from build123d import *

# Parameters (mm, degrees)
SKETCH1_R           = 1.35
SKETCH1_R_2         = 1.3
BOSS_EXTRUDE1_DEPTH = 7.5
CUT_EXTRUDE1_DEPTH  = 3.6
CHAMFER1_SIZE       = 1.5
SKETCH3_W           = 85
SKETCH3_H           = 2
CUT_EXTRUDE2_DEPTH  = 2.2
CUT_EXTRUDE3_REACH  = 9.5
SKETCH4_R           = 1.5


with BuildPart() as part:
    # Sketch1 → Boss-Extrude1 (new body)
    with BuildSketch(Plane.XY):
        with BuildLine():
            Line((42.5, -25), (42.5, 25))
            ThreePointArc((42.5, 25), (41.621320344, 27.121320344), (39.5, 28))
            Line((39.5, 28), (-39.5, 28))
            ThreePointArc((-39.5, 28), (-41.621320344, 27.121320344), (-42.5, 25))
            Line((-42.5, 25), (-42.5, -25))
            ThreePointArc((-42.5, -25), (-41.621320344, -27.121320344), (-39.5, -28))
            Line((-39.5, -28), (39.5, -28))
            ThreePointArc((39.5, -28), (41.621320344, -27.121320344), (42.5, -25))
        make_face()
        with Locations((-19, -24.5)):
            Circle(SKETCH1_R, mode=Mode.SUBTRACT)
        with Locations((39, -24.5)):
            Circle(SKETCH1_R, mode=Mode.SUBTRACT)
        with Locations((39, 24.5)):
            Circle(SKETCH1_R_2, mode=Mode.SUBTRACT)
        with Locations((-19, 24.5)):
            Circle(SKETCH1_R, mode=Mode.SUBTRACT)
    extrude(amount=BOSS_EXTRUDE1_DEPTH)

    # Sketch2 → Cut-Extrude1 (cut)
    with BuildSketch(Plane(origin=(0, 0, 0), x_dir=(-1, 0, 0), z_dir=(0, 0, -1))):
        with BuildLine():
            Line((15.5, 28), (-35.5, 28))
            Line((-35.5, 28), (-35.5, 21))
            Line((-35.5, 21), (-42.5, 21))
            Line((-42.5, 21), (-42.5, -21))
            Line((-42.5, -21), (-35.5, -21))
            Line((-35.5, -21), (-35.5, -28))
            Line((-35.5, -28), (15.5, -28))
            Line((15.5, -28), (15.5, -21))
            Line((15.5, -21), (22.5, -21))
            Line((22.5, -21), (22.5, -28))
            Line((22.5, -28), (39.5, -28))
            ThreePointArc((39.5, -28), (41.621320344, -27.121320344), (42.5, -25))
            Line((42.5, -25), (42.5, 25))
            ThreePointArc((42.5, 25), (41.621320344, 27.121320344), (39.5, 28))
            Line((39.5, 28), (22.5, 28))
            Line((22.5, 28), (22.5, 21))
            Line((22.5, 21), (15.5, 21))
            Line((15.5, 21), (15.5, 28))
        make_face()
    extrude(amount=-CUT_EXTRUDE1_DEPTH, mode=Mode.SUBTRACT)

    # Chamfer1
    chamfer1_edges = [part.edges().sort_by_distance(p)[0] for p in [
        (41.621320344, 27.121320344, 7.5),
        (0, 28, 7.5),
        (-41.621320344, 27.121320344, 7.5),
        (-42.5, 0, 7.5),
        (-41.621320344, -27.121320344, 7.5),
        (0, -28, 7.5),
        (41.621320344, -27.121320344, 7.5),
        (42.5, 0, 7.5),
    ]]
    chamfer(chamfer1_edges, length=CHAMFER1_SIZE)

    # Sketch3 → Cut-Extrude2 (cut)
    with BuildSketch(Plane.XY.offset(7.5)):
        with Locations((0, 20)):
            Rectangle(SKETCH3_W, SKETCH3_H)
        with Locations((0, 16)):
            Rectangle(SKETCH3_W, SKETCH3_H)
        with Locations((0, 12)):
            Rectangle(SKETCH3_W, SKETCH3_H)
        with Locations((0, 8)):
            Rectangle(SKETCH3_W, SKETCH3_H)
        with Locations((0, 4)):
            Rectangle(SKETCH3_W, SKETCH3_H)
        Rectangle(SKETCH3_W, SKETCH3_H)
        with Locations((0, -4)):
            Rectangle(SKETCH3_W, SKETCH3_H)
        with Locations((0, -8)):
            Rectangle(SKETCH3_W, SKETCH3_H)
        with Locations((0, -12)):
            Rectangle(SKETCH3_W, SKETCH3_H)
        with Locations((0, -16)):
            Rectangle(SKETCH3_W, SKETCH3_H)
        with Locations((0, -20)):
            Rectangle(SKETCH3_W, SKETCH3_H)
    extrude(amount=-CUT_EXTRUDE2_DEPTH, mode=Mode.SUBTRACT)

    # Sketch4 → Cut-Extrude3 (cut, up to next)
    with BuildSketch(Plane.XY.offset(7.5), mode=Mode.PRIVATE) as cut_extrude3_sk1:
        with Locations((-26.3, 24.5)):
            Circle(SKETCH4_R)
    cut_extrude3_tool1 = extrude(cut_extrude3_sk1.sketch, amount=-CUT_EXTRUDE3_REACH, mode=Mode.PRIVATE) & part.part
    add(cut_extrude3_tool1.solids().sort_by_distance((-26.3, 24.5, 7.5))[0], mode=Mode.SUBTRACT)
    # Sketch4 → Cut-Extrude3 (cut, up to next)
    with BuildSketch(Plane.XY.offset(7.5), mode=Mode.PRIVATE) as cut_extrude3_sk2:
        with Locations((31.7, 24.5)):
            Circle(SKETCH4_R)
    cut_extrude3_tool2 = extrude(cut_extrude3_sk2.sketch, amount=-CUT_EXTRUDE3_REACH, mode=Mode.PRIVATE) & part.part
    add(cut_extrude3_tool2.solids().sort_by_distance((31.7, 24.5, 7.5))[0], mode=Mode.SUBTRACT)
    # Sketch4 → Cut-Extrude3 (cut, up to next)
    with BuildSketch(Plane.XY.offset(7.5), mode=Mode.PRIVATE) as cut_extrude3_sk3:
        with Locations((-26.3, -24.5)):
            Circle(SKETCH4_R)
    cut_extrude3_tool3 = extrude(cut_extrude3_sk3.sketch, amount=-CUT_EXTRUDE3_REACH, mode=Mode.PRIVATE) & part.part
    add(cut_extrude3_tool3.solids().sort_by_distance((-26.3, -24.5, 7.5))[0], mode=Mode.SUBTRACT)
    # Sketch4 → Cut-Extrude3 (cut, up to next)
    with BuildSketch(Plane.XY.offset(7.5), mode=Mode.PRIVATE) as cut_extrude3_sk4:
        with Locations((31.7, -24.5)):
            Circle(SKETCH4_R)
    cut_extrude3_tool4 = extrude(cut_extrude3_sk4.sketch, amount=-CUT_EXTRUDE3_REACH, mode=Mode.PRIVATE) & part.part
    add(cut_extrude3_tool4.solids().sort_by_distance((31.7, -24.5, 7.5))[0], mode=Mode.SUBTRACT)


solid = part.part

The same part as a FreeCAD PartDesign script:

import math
import FreeCAD as App
import Part
import Sketcher
Q = App.Units.Quantity


def edges_at(feature, points):
    """Names of the edges that pass closest to the given points."""
    edges = feature.Shape.Edges
    near = lambda p: min(range(len(edges)), key=lambda i: edges[i].distToShape(Part.Vertex(*p))[0])
    return sorted({f"Edge{near(p) + 1}" for p in points})


def add_polygon(sketch, points):
    """Adds a closed chain of lines whose ends are joined by coincident constraints."""
    first, n = sketch.GeometryCount, len(points)
    for a, b in zip(points, points[1:] + points[:1]):
        sketch.addGeometry(Part.LineSegment(App.Vector(*a, 0), App.Vector(*b, 0)), False)
    for i in range(n):
        sketch.addConstraint(Sketcher.Constraint("Coincident", first + i, 2, first + (i + 1) % n, 1))

doc = App.newDocument("Part")
body = doc.addObject("PartDesign::Body", "Body")

sketch1 = body.newObject("Sketcher::SketchObject", "Sketch")
sketch1.AttachmentSupport = (doc.getObject("XY_Plane"), [""])
sketch1.MapMode = "FlatFace"
sketch1.addGeometry([
    Part.LineSegment(App.Vector(42.5, -25, 0), App.Vector(42.5, 25, 0)),
    Part.ArcOfCircle(Part.Circle(App.Vector(39.5, 25, 0), App.Vector(0, 0, 1), 3), math.radians(0), math.radians(90)),
    Part.LineSegment(App.Vector(39.5, 28, 0), App.Vector(-39.5, 28, 0)),
    Part.ArcOfCircle(Part.Circle(App.Vector(-39.5, 25, 0), App.Vector(0, 0, 1), 3), math.radians(90), math.radians(180)),
    Part.LineSegment(App.Vector(-42.5, 25, 0), App.Vector(-42.5, -25, 0)),
    Part.ArcOfCircle(Part.Circle(App.Vector(-39.5, -25, 0), App.Vector(0, 0, 1), 3), math.radians(180), math.radians(270)),
    Part.LineSegment(App.Vector(-39.5, -28, 0), App.Vector(39.5, -28, 0)),
    Part.ArcOfCircle(Part.Circle(App.Vector(39.5, -25, 0), App.Vector(0, 0, 1), 3), math.radians(-90), math.radians(0)),
    Part.Circle(App.Vector(-19, -24.5, 0), App.Vector(0, 0, 1), 1.4),
    Part.Circle(App.Vector(39, -24.5, 0), App.Vector(0, 0, 1), 1.4),
    Part.Circle(App.Vector(-19, 24.5, 0), App.Vector(0, 0, 1), 1.4),
    Part.Circle(App.Vector(39, 24.5, 0), App.Vector(0, 0, 1), 1.3),
], False)
sketch1.addConstraint([
    Sketcher.Constraint("Tangent", 0, 2, 1, 1),
    Sketcher.Constraint("Tangent", 1, 2, 2, 1),
    Sketcher.Constraint("Tangent", 2, 2, 3, 1),
    Sketcher.Constraint("Tangent", 3, 2, 4, 1),
    Sketcher.Constraint("Tangent", 4, 2, 5, 1),
    Sketcher.Constraint("Tangent", 5, 2, 6, 1),
    Sketcher.Constraint("Tangent", 6, 2, 7, 1),
    Sketcher.Constraint("Tangent", 7, 2, 0, 1),
    Sketcher.Constraint("Vertical", 0),
    Sketcher.Constraint("Horizontal", 2),
    Sketcher.Constraint("Vertical", 4),
    Sketcher.Constraint("Horizontal", 6),
    Sketcher.Constraint("Equal", 1, 3),
    Sketcher.Constraint("Equal", 3, 5),
    Sketcher.Constraint("Equal", 5, 7),
    Sketcher.Constraint("Equal", 8, 9),
    Sketcher.Constraint("Equal", 9, 10),
    Sketcher.Constraint("Symmetric", 1, 3, 5, 3, -1, 1),
    Sketcher.Constraint("Symmetric", 8, 3, 10, 3, -1),
    Sketcher.Constraint("Symmetric", 9, 3, 11, 3, -1),
    Sketcher.Constraint("Horizontal", 8, 3, 9, 3),
    Sketcher.Constraint("Radius", 1, Q("3 mm")),
    Sketcher.Constraint("Diameter", 8, Q("2.7 mm")),
    Sketcher.Constraint("Diameter", 11, Q("2.6 mm")),
    Sketcher.Constraint("DistanceX", 2, 2, 2, 1, Q("79 mm")),
    Sketcher.Constraint("DistanceY", 0, 1, 0, 2, Q("50 mm")),
    Sketcher.Constraint("DistanceX", 8, 3, -1, 1, Q("19 mm")),
    Sketcher.Constraint("DistanceX", -1, 1, 9, 3, Q("39 mm")),
    Sketcher.Constraint("DistanceY", 8, 3, 10, 3, Q("49 mm")),
])
pad1 = body.newObject("PartDesign::Pad", "Pad")
pad1.Profile = sketch1
pad1.Length = 7.5

sketch2 = body.newObject("Sketcher::SketchObject", "Sketch001")
sketch2.AttachmentSupport = (doc.getObject("XY_Plane"), [""])
sketch2.MapMode = "FlatFace"
sketch2.addGeometry([
    Part.LineSegment(App.Vector(-15.5, 28, 0), App.Vector(35.5, 28, 0)),
    Part.LineSegment(App.Vector(35.5, 28, 0), App.Vector(35.5, 21, 0)),
    Part.LineSegment(App.Vector(35.5, 21, 0), App.Vector(42.5, 21, 0)),
    Part.LineSegment(App.Vector(42.5, 21, 0), App.Vector(42.5, -21, 0)),
    Part.LineSegment(App.Vector(42.5, -21, 0), App.Vector(35.5, -21, 0)),
    Part.LineSegment(App.Vector(35.5, -21, 0), App.Vector(35.5, -28, 0)),
    Part.LineSegment(App.Vector(35.5, -28, 0), App.Vector(-15.5, -28, 0)),
    Part.LineSegment(App.Vector(-15.5, -28, 0), App.Vector(-15.5, -21, 0)),
    Part.LineSegment(App.Vector(-15.5, -21, 0), App.Vector(-22.5, -21, 0)),
    Part.LineSegment(App.Vector(-22.5, -21, 0), App.Vector(-22.5, -28, 0)),
    Part.LineSegment(App.Vector(-22.5, -28, 0), App.Vector(-39.5, -28, 0)),
    Part.ArcOfCircle(Part.Circle(App.Vector(-39.5, -25, 0), App.Vector(0, 0, 1), 3), math.radians(180), math.radians(270)),
    Part.LineSegment(App.Vector(-42.5, -25, 0), App.Vector(-42.5, 25, 0)),
    Part.ArcOfCircle(Part.Circle(App.Vector(-39.5, 25, 0), App.Vector(0, 0, 1), 3), math.radians(90), math.radians(180)),
    Part.LineSegment(App.Vector(-39.5, 28, 0), App.Vector(-22.5, 28, 0)),
    Part.LineSegment(App.Vector(-22.5, 28, 0), App.Vector(-22.5, 21, 0)),
    Part.LineSegment(App.Vector(-22.5, 21, 0), App.Vector(-15.5, 21, 0)),
    Part.LineSegment(App.Vector(-15.5, 21, 0), App.Vector(-15.5, 28, 0)),
], False)
sketch2.addConstraint([
    Sketcher.Constraint("Coincident", 0, 2, 1, 1),
    Sketcher.Constraint("Coincident", 1, 2, 2, 1),
    Sketcher.Constraint("Coincident", 2, 2, 3, 1),
    Sketcher.Constraint("Coincident", 3, 2, 4, 1),
    Sketcher.Constraint("Coincident", 4, 2, 5, 1),
    Sketcher.Constraint("Coincident", 5, 2, 6, 1),
    Sketcher.Constraint("Coincident", 6, 2, 7, 1),
    Sketcher.Constraint("Coincident", 7, 2, 8, 1),
    Sketcher.Constraint("Coincident", 8, 2, 9, 1),
    Sketcher.Constraint("Coincident", 9, 2, 10, 1),
    Sketcher.Constraint("Tangent", 10, 2, 11, 2),
    Sketcher.Constraint("Tangent", 11, 1, 12, 1),
    Sketcher.Constraint("Tangent", 12, 2, 13, 2),
    Sketcher.Constraint("Tangent", 13, 1, 14, 1),
    Sketcher.Constraint("Coincident", 14, 2, 15, 1),
    Sketcher.Constraint("Coincident", 15, 2, 16, 1),
    Sketcher.Constraint("Coincident", 16, 2, 17, 1),
    Sketcher.Constraint("Coincident", 17, 2, 0, 1),
    Sketcher.Constraint("Horizontal", 0),
    Sketcher.Constraint("Vertical", 1),
    Sketcher.Constraint("Horizontal", 2),
    Sketcher.Constraint("Vertical", 3),
    Sketcher.Constraint("Horizontal", 4),
    Sketcher.Constraint("Vertical", 5),
    Sketcher.Constraint("Horizontal", 6),
    Sketcher.Constraint("Vertical", 7),
    Sketcher.Constraint("Horizontal", 8),
    Sketcher.Constraint("Vertical", 9),
    Sketcher.Constraint("Horizontal", 10),
    Sketcher.Constraint("Vertical", 12),
    Sketcher.Constraint("Horizontal", 14),
    Sketcher.Constraint("Vertical", 15),
    Sketcher.Constraint("Horizontal", 16),
    Sketcher.Constraint("Vertical", 17),
    Sketcher.Constraint("Equal", 11, 13),
    Sketcher.Constraint("Symmetric", 1, 2, 4, 2, -1),
    Sketcher.Constraint("Symmetric", 9, 2, 14, 2, -1),
    Sketcher.Constraint("Symmetric", 7, 2, 16, 2, -1),
    Sketcher.Constraint("Horizontal", 4, 2, 7, 2),
    Sketcher.Constraint("Horizontal", 6, 2, 9, 2),
    Sketcher.Constraint("Horizontal", 0, 2, 13, 1),
    Sketcher.Constraint("Equal", 4, 8),
    Sketcher.Constraint("Equal", 16, 1),
    Sketcher.Constraint("Radius", 11, Q("3 mm")),
    Sketcher.Constraint("DistanceX", 0, 1, 0, 2, Q("51 mm")),
    Sketcher.Constraint("DistanceX", 2, 1, 2, 2, Q("7 mm")),
    Sketcher.Constraint("DistanceX", 10, 2, 10, 1, Q("17 mm")),
    Sketcher.Constraint("DistanceY", 3, 2, 3, 1, Q("42 mm")),
    Sketcher.Constraint("DistanceX", 11, 3, -1, 1, Q("39.5 mm")),
])
pocket1 = body.newObject("PartDesign::Pocket", "Pocket")
pocket1.Profile = sketch2
pocket1.Length = 3.6
pocket1.Reversed = True
doc.recompute()

chamfer = body.newObject("PartDesign::Chamfer", "Chamfer")
chamfer.Base = (pocket1, edges_at(pocket1, [
    (41.621, 27.121, 7.5),
    (0, 28, 7.5),
    (-41.621, 27.121, 7.5),
    (-42.5, 0, 7.5),
    (-41.621, -27.121, 7.5),
    (0, -28, 7.5),
    (41.621, -27.121, 7.5),
    (42.5, 0, 7.5),
]))
chamfer.Size = 1.5

sketch3 = body.newObject("Sketcher::SketchObject", "Sketch002")
sketch3.AttachmentSupport = (doc.getObject("XY_Plane"), [""])
sketch3.MapMode = "FlatFace"
sketch3.AttachmentOffset = App.Placement(App.Vector(0, 0, 7.5), App.Rotation())
add_polygon(sketch3, [(-42.5, 21), (-42.5, 19), (42.5, 19), (42.5, 21)])
add_polygon(sketch3, [(-42.5, 17), (-42.5, 15), (42.5, 15), (42.5, 17)])
add_polygon(sketch3, [(-42.5, 13), (-42.5, 11), (42.5, 11), (42.5, 13)])
add_polygon(sketch3, [(-42.5, 9), (-42.5, 7), (42.5, 7), (42.5, 9)])
add_polygon(sketch3, [(-42.5, 5), (-42.5, 3), (42.5, 3), (42.5, 5)])
add_polygon(sketch3, [(-42.5, 1), (-42.5, -1), (42.5, -1), (42.5, 1)])
add_polygon(sketch3, [(-42.5, -3), (-42.5, -5), (42.5, -5), (42.5, -3)])
add_polygon(sketch3, [(-42.5, -7), (-42.5, -9), (42.5, -9), (42.5, -7)])
add_polygon(sketch3, [(-42.5, -11), (-42.5, -13), (42.5, -13), (42.5, -11)])
add_polygon(sketch3, [(-42.5, -15), (-42.5, -17), (42.5, -17), (42.5, -15)])
add_polygon(sketch3, [(-42.5, -19), (-42.5, -21), (42.5, -21), (42.5, -19)])
sketch3.addConstraint([
    Sketcher.Constraint("Vertical", 0),
    Sketcher.Constraint("Horizontal", 1),
    Sketcher.Constraint("Vertical", 2),
    Sketcher.Constraint("Horizontal", 3),
    Sketcher.Constraint("Vertical", 4),
    Sketcher.Constraint("Horizontal", 5),
    Sketcher.Constraint("Vertical", 6),
    Sketcher.Constraint("Horizontal", 7),
    Sketcher.Constraint("Vertical", 8),
    Sketcher.Constraint("Horizontal", 9),
    Sketcher.Constraint("Vertical", 10),
    Sketcher.Constraint("Horizontal", 11),
    Sketcher.Constraint("Vertical", 12),
    Sketcher.Constraint("Horizontal", 13),
    Sketcher.Constraint("Vertical", 14),
    Sketcher.Constraint("Horizontal", 15),
    Sketcher.Constraint("Vertical", 16),
    Sketcher.Constraint("Horizontal", 17),
    Sketcher.Constraint("Vertical", 18),
    Sketcher.Constraint("Horizontal", 19),
    Sketcher.Constraint("Vertical", 20),
    Sketcher.Constraint("Horizontal", 21),
    Sketcher.Constraint("Vertical", 22),
    Sketcher.Constraint("Horizontal", 23),
    Sketcher.Constraint("Vertical", 24),
    Sketcher.Constraint("Horizontal", 25),
    Sketcher.Constraint("Vertical", 26),
    Sketcher.Constraint("Horizontal", 27),
    Sketcher.Constraint("Vertical", 28),
    Sketcher.Constraint("Horizontal", 29),
    Sketcher.Constraint("Vertical", 30),
    Sketcher.Constraint("Horizontal", 31),
    Sketcher.Constraint("Vertical", 32),
    Sketcher.Constraint("Horizontal", 33),
    Sketcher.Constraint("Vertical", 34),
    Sketcher.Constraint("Horizontal", 35),
    Sketcher.Constraint("Vertical", 36),
    Sketcher.Constraint("Horizontal", 37),
    Sketcher.Constraint("Vertical", 38),
    Sketcher.Constraint("Horizontal", 39),
    Sketcher.Constraint("Vertical", 40),
    Sketcher.Constraint("Horizontal", 41),
    Sketcher.Constraint("Vertical", 42),
    Sketcher.Constraint("Horizontal", 43),
    Sketcher.Constraint("Symmetric", 20, 2, 22, 2, -1, 1),
    Sketcher.Constraint("Symmetric", 18, 2, 24, 2, -1, 1),
    Sketcher.Constraint("Symmetric", 16, 2, 26, 2, -1, 1),
    Sketcher.Constraint("Symmetric", 14, 2, 28, 2, -1, 1),
    Sketcher.Constraint("Symmetric", 12, 2, 30, 2, -1, 1),
    Sketcher.Constraint("Symmetric", 10, 2, 32, 2, -1, 1),
    Sketcher.Constraint("Symmetric", 8, 2, 34, 2, -1, 1),
    Sketcher.Constraint("Symmetric", 6, 2, 36, 2, -1, 1),
    Sketcher.Constraint("Symmetric", 4, 2, 38, 2, -1, 1),
    Sketcher.Constraint("Symmetric", 2, 2, 40, 2, -1, 1),
    Sketcher.Constraint("Symmetric", 0, 2, 42, 2, -1, 1),
    Sketcher.Constraint("Vertical", 3, 2, 4, 2),
    Sketcher.Constraint("Vertical", 2, 2, 5, 2),
    Sketcher.Constraint("Vertical", 7, 2, 8, 2),
    Sketcher.Constraint("Vertical", 6, 2, 9, 2),
    Sketcher.Constraint("Vertical", 11, 2, 12, 2),
    Sketcher.Constraint("Vertical", 10, 2, 13, 2),
    Sketcher.Constraint("Vertical", 15, 2, 16, 2),
    Sketcher.Constraint("Vertical", 14, 2, 17, 2),
    Sketcher.Constraint("Vertical", 19, 2, 20, 2),
    Sketcher.Constraint("Vertical", 18, 2, 21, 2),
    Sketcher.Constraint("Equal", 2, 4),
    Sketcher.Constraint("Equal", 6, 8),
    Sketcher.Constraint("Equal", 10, 12),
    Sketcher.Constraint("Equal", 14, 16),
    Sketcher.Constraint("Equal", 18, 20),
    Sketcher.Constraint("DistanceX", 1, 1, 1, 2, Q("85 mm")),
    Sketcher.Constraint("DistanceY", 0, 2, 0, 1, Q("2 mm")),
    Sketcher.Constraint("DistanceY", -1, 1, 0, 2, Q("19 mm")),
    Sketcher.Constraint("DistanceY", -1, 1, 4, 2, Q("15 mm")),
    Sketcher.Constraint("DistanceY", -1, 1, 8, 2, Q("11 mm")),
    Sketcher.Constraint("DistanceY", -1, 1, 12, 2, Q("7 mm")),
    Sketcher.Constraint("DistanceY", -1, 1, 16, 2, Q("3 mm")),
])
pocket2 = body.newObject("PartDesign::Pocket", "Pocket001")
pocket2.Profile = sketch3
pocket2.Length = 2.2

sketch4 = body.newObject("Sketcher::SketchObject", "Sketch003")
sketch4.AttachmentSupport = (doc.getObject("XY_Plane"), [""])
sketch4.MapMode = "FlatFace"
sketch4.AttachmentOffset = App.Placement(App.Vector(0, 0, 7.5), App.Rotation())
sketch4.addGeometry(Part.Circle(App.Vector(-26.3, 24.5, 0), App.Vector(0, 0, 1), 1.5), False)
sketch4.addConstraint([
    Sketcher.Constraint("Diameter", 0, Q("3 mm")),
    Sketcher.Constraint("DistanceX", 0, 3, -1, 1, Q("26.3 mm")),
    Sketcher.Constraint("DistanceY", -1, 1, 0, 3, Q("24.5 mm")),
])
pocket3 = body.newObject("PartDesign::Pocket", "Pocket002")
pocket3.Profile = sketch4
pocket3.Type = "UpToFirst"

sketch5 = body.newObject("Sketcher::SketchObject", "Sketch004")
sketch5.AttachmentSupport = (doc.getObject("XY_Plane"), [""])
sketch5.MapMode = "FlatFace"
sketch5.AttachmentOffset = App.Placement(App.Vector(0, 0, 7.5), App.Rotation())
sketch5.addGeometry(Part.Circle(App.Vector(31.7, 24.5, 0), App.Vector(0, 0, 1), 1.5), False)
sketch5.addConstraint([
    Sketcher.Constraint("Diameter", 0, Q("3 mm")),
    Sketcher.Constraint("DistanceX", -1, 1, 0, 3, Q("31.7 mm")),
    Sketcher.Constraint("DistanceY", -1, 1, 0, 3, Q("24.5 mm")),
])
pocket4 = body.newObject("PartDesign::Pocket", "Pocket003")
pocket4.Profile = sketch5
pocket4.Type = "UpToFirst"

sketch6 = body.newObject("Sketcher::SketchObject", "Sketch005")
sketch6.AttachmentSupport = (doc.getObject("XY_Plane"), [""])
sketch6.MapMode = "FlatFace"
sketch6.AttachmentOffset = App.Placement(App.Vector(0, 0, 7.5), App.Rotation())
sketch6.addGeometry(Part.Circle(App.Vector(-26.3, -24.5, 0), App.Vector(0, 0, 1), 1.5), False)
sketch6.addConstraint([
    Sketcher.Constraint("Diameter", 0, Q("3 mm")),
    Sketcher.Constraint("DistanceX", 0, 3, -1, 1, Q("26.3 mm")),
    Sketcher.Constraint("DistanceY", 0, 3, -1, 1, Q("24.5 mm")),
])
pocket5 = body.newObject("PartDesign::Pocket", "Pocket004")
pocket5.Profile = sketch6
pocket5.Type = "UpToFirst"

sketch7 = body.newObject("Sketcher::SketchObject", "Sketch006")
sketch7.AttachmentSupport = (doc.getObject("XY_Plane"), [""])
sketch7.MapMode = "FlatFace"
sketch7.AttachmentOffset = App.Placement(App.Vector(0, 0, 7.5), App.Rotation())
sketch7.addGeometry(Part.Circle(App.Vector(31.7, -24.5, 0), App.Vector(0, 0, 1), 1.5), False)
sketch7.addConstraint([
    Sketcher.Constraint("Diameter", 0, Q("3 mm")),
    Sketcher.Constraint("DistanceX", -1, 1, 0, 3, Q("31.7 mm")),
    Sketcher.Constraint("DistanceY", 0, 3, -1, 1, Q("24.5 mm")),
])
pocket6 = body.newObject("PartDesign::Pocket", "Pocket005")
pocket6.Profile = sketch7
pocket6.Type = "UpToFirst"

doc.recompute()
